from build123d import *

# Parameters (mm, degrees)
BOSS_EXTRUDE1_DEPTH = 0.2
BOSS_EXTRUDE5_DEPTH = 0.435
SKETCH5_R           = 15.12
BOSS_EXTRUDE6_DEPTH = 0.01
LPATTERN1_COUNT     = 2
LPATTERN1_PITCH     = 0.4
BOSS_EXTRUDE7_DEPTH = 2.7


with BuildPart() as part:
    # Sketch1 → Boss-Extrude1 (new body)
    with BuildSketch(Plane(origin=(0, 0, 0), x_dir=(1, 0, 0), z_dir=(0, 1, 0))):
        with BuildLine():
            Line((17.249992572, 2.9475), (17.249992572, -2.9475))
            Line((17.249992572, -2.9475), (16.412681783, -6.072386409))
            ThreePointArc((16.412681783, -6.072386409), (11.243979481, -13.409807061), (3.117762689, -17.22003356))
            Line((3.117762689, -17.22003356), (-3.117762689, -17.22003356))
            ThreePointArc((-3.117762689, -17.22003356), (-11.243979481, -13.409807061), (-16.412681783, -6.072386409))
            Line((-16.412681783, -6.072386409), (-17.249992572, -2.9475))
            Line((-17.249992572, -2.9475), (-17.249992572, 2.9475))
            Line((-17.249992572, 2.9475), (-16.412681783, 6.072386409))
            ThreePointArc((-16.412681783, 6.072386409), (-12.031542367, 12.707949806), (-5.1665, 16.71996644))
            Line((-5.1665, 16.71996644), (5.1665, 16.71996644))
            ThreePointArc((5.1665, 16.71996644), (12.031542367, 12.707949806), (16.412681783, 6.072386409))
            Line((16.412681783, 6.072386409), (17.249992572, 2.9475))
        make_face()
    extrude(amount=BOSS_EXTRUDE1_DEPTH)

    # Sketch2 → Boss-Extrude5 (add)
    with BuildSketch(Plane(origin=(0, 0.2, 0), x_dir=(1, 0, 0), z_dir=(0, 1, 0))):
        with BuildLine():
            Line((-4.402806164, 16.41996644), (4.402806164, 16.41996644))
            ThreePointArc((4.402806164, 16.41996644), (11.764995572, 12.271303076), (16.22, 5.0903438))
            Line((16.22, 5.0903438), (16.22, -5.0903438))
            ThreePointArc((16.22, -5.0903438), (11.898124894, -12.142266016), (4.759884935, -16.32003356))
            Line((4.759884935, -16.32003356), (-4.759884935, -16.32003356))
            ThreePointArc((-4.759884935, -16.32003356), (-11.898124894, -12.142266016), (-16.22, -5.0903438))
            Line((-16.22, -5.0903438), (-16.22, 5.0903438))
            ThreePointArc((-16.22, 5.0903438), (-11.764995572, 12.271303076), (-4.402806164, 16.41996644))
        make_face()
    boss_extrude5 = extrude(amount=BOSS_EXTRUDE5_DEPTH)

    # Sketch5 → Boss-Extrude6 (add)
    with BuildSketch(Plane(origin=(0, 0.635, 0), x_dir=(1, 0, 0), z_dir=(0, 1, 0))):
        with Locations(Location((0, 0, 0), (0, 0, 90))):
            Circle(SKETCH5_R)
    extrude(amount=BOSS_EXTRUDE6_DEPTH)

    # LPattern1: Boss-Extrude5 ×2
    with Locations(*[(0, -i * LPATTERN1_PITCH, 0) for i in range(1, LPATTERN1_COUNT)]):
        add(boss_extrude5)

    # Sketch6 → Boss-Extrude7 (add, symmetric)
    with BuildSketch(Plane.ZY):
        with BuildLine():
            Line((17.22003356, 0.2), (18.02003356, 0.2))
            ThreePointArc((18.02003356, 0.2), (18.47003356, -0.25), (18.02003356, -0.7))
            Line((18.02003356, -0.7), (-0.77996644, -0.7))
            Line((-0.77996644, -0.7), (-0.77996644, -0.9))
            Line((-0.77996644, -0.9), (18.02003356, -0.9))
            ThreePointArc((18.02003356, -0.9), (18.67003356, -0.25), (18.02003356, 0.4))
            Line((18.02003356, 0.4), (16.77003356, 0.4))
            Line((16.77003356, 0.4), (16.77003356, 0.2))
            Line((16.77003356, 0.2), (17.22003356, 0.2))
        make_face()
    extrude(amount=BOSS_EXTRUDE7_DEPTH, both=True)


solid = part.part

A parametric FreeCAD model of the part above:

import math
import FreeCAD as App
import Part
import Sketcher
Q = App.Units.Quantity

doc = App.newDocument("Part")
body = doc.addObject("PartDesign::Body", "Body")

# Sketch on XZ plane
sketch1 = doc.addObject("Sketcher::SketchObject", "Sketch")
body.addObject(sketch1)
sketch1.AttachmentSupport = (doc.XZ_Plane, [""])
sketch1.MapMode = "FlatFace"
sketch1.addGeometry([
    Part.LineSegment(App.Vector(17.2, 2.9, 0), App.Vector(17.2, -2.9, 0)),  # 0
    Part.LineSegment(App.Vector(17.2, -2.9, 0), App.Vector(16.4, -6.1, 0)),  # 1
    Part.ArcOfCircle(Part.Circle(App.Vector(0, 0, 0), App.Vector(0, 0, 1), 17.5), math.radians(-73), math.radians(-20)),  # 2
    Part.LineSegment(App.Vector(5.2, -16.7, 0), App.Vector(-5.2, -16.7, 0)),  # 3
    Part.ArcOfCircle(Part.Circle(App.Vector(0, 0, 0), App.Vector(0, 0, 1), 17.5), math.radians(-160), math.radians(-107)),  # 4
    Part.LineSegment(App.Vector(-16.4, -6.1, 0), App.Vector(-17.2, -2.9, 0)),  # 5
    Part.LineSegment(App.Vector(-17.2, -2.9, 0), App.Vector(-17.2, 2.9, 0)),  # 6
    Part.LineSegment(App.Vector(-17.2, 2.9, 0), App.Vector(-16.4, 6.1, 0)),  # 7
    Part.ArcOfCircle(Part.Circle(App.Vector(0, 0, 0), App.Vector(0, 0, 1), 17.5), math.radians(100), math.radians(160)),  # 8
    Part.LineSegment(App.Vector(-3.1, 17.2, 0), App.Vector(3.1, 17.2, 0)),  # 9
    Part.ArcOfCircle(Part.Circle(App.Vector(0, 0, 0), App.Vector(0, 0, 1), 17.5), math.radians(20), math.radians(80)),  # 10
    Part.LineSegment(App.Vector(16.4, 6.1, 0), App.Vector(17.2, 2.9, 0)),  # 11
], False)
sketch1.addConstraint([
    Sketcher.Constraint("Coincident", 0, 2, 1, 1),
    Sketcher.Constraint("Coincident", 1, 2, 2, 2),
    Sketcher.Constraint("Coincident", 2, 1, 3, 1),
    Sketcher.Constraint("Coincident", 3, 2, 4, 2),
    Sketcher.Constraint("Coincident", 4, 1, 5, 1),
    Sketcher.Constraint("Coincident", 5, 2, 6, 1),
    Sketcher.Constraint("Coincident", 6, 2, 7, 1),
    Sketcher.Constraint("Coincident", 7, 2, 8, 2),
    Sketcher.Constraint("Coincident", 8, 1, 9, 1),
    Sketcher.Constraint("Coincident", 9, 2, 10, 2),
    Sketcher.Constraint("Coincident", 10, 1, 11, 1),
    Sketcher.Constraint("Coincident", 11, 2, 0, 1),
    Sketcher.Constraint("Vertical", 0),
    Sketcher.Constraint("Horizontal", 3),
    Sketcher.Constraint("Vertical", 6),
    Sketcher.Constraint("Horizontal", 9),
    Sketcher.Constraint("Coincident", 2, 3, -1, 1),
    Sketcher.Constraint("Coincident", 4, 3, -1, 1),
    Sketcher.Constraint("Coincident", 8, 3, -1, 1),
    Sketcher.Constraint("Coincident", 10, 3, -1, 1),
    Sketcher.Constraint("Equal", 2, 4),
    Sketcher.Constraint("Equal", 4, 8),
    Sketcher.Constraint("Equal", 8, 10),
    Sketcher.Constraint("Symmetric", 0, 2, 6, 2, -1, 1),
    Sketcher.Constraint("Parallel", 1, 7),
    Sketcher.Constraint("Parallel", 5, 11),
    Sketcher.Constraint("Horizontal", 1, 2, 4, 1),
    Sketcher.Constraint("Horizontal", 0, 2, 5, 2),
    Sketcher.Constraint("Horizontal", 7, 2, 10, 1),
    Sketcher.Constraint("Radius", 2, Q("17.5 mm")),
    Sketcher.Constraint("Angle", 1, Q("-105 deg")),
    Sketcher.Constraint("DistanceX", 3, 2, 3, 1, Q("10.333 mm")),
    Sketcher.Constraint("DistanceY", 0, 2, 0, 1, Q("5.895 mm")),
    Sketcher.Constraint("Distance", 1, Q("3.23512 mm")),
    Sketcher.Constraint("DistanceX", 9, 1, 9, 2, Q("6.235525 mm")),
])
pad1 = doc.addObject("PartDesign::Pad", "Pad")
body.addObject(pad1)
pad1.Profile = sketch1
pad1.Length = 0.2
pad1.Reversed = True

# Sketch on XZ plane
sketch2 = doc.addObject("Sketcher::SketchObject", "Sketch001")
body.addObject(sketch2)
sketch2.AttachmentSupport = (doc.XZ_Plane, [""])
sketch2.MapMode = "FlatFace"
sketch2.AttachmentOffset = App.Placement(App.Vector(0, 0, -0.2), App.Rotation())
sketch2.addGeometry([
    Part.LineSegment(App.Vector(4, -16, 0), App.Vector(-4, -16, 0)),  # 0
    Part.ArcOfCircle(Part.Circle(App.Vector(0, 0, 0), App.Vector(0, 0, 1), 17), math.radians(-163), math.radians(-105)),  # 1
    Part.LineSegment(App.Vector(-16, -5, 0), App.Vector(-16, 5, 0)),  # 2
    Part.ArcOfCircle(Part.Circle(App.Vector(0, 0, 0), App.Vector(0, 0, 1), 17), math.radians(106), math.radians(163)),  # 3
    Part.LineSegment(App.Vector(-5, 16, 0), App.Vector(5, 16, 0)),  # 4
    Part.ArcOfCircle(Part.Circle(App.Vector(0, 0, 0), App.Vector(0, 0, 1), 17), math.radians(17), math.radians(74)),  # 5
    Part.LineSegment(App.Vector(16, 5, 0), App.Vector(16, -5, 0)),  # 6
    Part.ArcOfCircle(Part.Circle(App.Vector(0, 0, 0), App.Vector(0, 0, 1), 17), math.radians(-75), math.radians(-17)),  # 7
], False)
sketch2.addConstraint([
    Sketcher.Constraint("Coincident", 0, 2, 1, 2),
    Sketcher.Constraint("Coincident", 1, 1, 2, 1),
    Sketcher.Constraint("Coincident", 2, 2, 3, 2),
    Sketcher.Constraint("Coincident", 3, 1, 4, 1),
    Sketcher.Constraint("Coincident", 4, 2, 5, 2),
    Sketcher.Constraint("Coincident", 5, 1, 6, 1),
    Sketcher.Constraint("Coincident", 6, 2, 7, 2),
    Sketcher.Constraint("Coincident", 7, 1, 0, 1),
    Sketcher.Constraint("Horizontal", 0),
    Sketcher.Constraint("Vertical", 2),
    Sketcher.Constraint("Horizontal", 4),
    Sketcher.Constraint("Vertical", 6),
    Sketcher.Constraint("Coincident", 1, 3, -1, 1),
    Sketcher.Constraint("Coincident", 3, 3, -1, 1),
    Sketcher.Constraint("Coincident", 5, 3, -1, 1),
    Sketcher.Constraint("Coincident", 7, 3, -1, 1),
    Sketcher.Constraint("Equal", 1, 3),
    Sketcher.Constraint("Equal", 3, 5),
    Sketcher.Constraint("Equal", 5, 7),
    Sketcher.Constraint("Horizontal", 2, 2, 5, 1),
    Sketcher.Constraint("Radius", 1, Q("17 mm")),
    Sketcher.Constraint("DistanceX", 1, 1, -1, 1, Q("16.22 mm")),
    Sketcher.Constraint("DistanceX", 4, 1, 4, 2, Q("9.51977 mm")),
    Sketcher.Constraint("DistanceX", 0, 2, 0, 1, Q("8.805612 mm")),
])
pad2 = doc.addObject("PartDesign::Pad", "Pad001")
body.addObject(pad2)
pad2.Profile = sketch2
pad2.Length = 0.435
pad2.Reversed = True

# Sketch on XZ plane
sketch3 = doc.addObject("Sketcher::SketchObject", "Sketch002")
body.addObject(sketch3)
sketch3.AttachmentSupport = (doc.XZ_Plane, [""])
sketch3.MapMode = "FlatFace"
sketch3.AttachmentOffset = App.Placement(App.Vector(0, 0, -0.635), App.Rotation())
sketch3.addGeometry(Part.Circle(App.Vector(0, 0, 0), App.Vector(0, 0, 1), 15), False)
sketch3.addConstraint([
    Sketcher.Constraint("Coincident", 0, 3, -1, 1),
    Sketcher.Constraint("Diameter", 0, Q("30.24 mm")),
])
pad3 = doc.addObject("PartDesign::Pad", "Pad002")
body.addObject(pad3)
pad3.Profile = sketch3
pad3.Length = 0.01
pad3.Reversed = True
doc.recompute()

linearpattern = doc.addObject("PartDesign::LinearPattern", "LinearPattern")
body.addObject(linearpattern)
linearpattern.Originals = [pad2]
linearpattern.Direction = (doc.Y_Axis, [""])
linearpattern.Mode = "offset"
linearpattern.Offset = 0.4
linearpattern.Occurrences = 2
linearpattern.Reversed = True
body.Tip = linearpattern

# Sketch on YZ plane
sketch4 = doc.addObject("Sketcher::SketchObject", "Sketch003")
body.addObject(sketch4)
sketch4.AttachmentSupport = (doc.YZ_Plane, [""])
sketch4.MapMode = "FlatFace"
sketch4.addGeometry([
    Part.ArcOfCircle(Part.Circle(App.Vector(-0.25, 18.02, 0), App.Vector(0, 0, 1), 0.45), math.radians(0), math.radians(180)),  # 0
    Part.LineSegment(App.Vector(-0.7, 18.02, 0), App.Vector(-0.7, -0.78, 0)),  # 1
    Part.LineSegment(App.Vector(-0.7, -0.78, 0), App.Vector(-0.9, -0.78, 0)),  # 2
    Part.LineSegment(App.Vector(-0.9, -0.78, 0), App.Vector(-0.9, 18.02, 0)),  # 3
    Part.ArcOfCircle(Part.Circle(App.Vector(-0.25, 18.02, 0), App.Vector(0, 0, 1), 0.65), math.radians(0), math.radians(180)),  # 4
    Part.LineSegment(App.Vector(0.4, 18.02, 0), App.Vector(0.4, 16.77, 0)),  # 5
    Part.LineSegment(App.Vector(0.4, 16.77, 0), App.Vector(0.2, 16.77, 0)),  # 6
    Part.LineSegment(App.Vector(0.2, 16.77, 0), App.Vector(0.2, 18.02, 0)),  # 7
], False)
sketch4.addConstraint([
    Sketcher.Constraint("Tangent", 0, 2, 1, 1),
    Sketcher.Constraint("Coincident", 1, 2, 2, 1),
    Sketcher.Constraint("Coincident", 2, 2, 3, 1),
    Sketcher.Constraint("Tangent", 3, 2, 4, 2),
    Sketcher.Constraint("Tangent", 4, 1, 5, 1),
    Sketcher.Constraint("Coincident", 5, 2, 6, 1),
    Sketcher.Constraint("Coincident", 6, 2, 7, 1),
    Sketcher.Constraint("Tangent", 7, 2, 0, 1),
    Sketcher.Constraint("Vertical", 1),
    Sketcher.Constraint("Horizontal", 2),
    Sketcher.Constraint("Vertical", 3),
    Sketcher.Constraint("Vertical", 5),
    Sketcher.Constraint("Horizontal", 6),
    Sketcher.Constraint("Vertical", 7),
    Sketcher.Constraint("Coincident", 4, 3, 0, 3),
    Sketcher.Constraint("Radius", 0, Q("0.45 mm")),
    Sketcher.Constraint("Radius", 4, Q("0.65 mm")),
    Sketcher.Constraint("DistanceY", 1, 2, 1, 1, Q("18.8 mm")),
    Sketcher.Constraint("DistanceY", 5, 2, 5, 1, Q("1.25 mm")),
    Sketcher.Constraint("DistanceX", 0, 2, -1, 1, Q("0.7 mm")),
    Sketcher.Constraint("DistanceY", -1, 1, 0, 3, Q("18.020034 mm")),
])
pad4 = doc.addObject("PartDesign::Pad", "Pad003")
body.addObject(pad4)
pad4.Profile = sketch4
pad4.Length = 5.4
pad4.Midplane = True

doc.recompute()
